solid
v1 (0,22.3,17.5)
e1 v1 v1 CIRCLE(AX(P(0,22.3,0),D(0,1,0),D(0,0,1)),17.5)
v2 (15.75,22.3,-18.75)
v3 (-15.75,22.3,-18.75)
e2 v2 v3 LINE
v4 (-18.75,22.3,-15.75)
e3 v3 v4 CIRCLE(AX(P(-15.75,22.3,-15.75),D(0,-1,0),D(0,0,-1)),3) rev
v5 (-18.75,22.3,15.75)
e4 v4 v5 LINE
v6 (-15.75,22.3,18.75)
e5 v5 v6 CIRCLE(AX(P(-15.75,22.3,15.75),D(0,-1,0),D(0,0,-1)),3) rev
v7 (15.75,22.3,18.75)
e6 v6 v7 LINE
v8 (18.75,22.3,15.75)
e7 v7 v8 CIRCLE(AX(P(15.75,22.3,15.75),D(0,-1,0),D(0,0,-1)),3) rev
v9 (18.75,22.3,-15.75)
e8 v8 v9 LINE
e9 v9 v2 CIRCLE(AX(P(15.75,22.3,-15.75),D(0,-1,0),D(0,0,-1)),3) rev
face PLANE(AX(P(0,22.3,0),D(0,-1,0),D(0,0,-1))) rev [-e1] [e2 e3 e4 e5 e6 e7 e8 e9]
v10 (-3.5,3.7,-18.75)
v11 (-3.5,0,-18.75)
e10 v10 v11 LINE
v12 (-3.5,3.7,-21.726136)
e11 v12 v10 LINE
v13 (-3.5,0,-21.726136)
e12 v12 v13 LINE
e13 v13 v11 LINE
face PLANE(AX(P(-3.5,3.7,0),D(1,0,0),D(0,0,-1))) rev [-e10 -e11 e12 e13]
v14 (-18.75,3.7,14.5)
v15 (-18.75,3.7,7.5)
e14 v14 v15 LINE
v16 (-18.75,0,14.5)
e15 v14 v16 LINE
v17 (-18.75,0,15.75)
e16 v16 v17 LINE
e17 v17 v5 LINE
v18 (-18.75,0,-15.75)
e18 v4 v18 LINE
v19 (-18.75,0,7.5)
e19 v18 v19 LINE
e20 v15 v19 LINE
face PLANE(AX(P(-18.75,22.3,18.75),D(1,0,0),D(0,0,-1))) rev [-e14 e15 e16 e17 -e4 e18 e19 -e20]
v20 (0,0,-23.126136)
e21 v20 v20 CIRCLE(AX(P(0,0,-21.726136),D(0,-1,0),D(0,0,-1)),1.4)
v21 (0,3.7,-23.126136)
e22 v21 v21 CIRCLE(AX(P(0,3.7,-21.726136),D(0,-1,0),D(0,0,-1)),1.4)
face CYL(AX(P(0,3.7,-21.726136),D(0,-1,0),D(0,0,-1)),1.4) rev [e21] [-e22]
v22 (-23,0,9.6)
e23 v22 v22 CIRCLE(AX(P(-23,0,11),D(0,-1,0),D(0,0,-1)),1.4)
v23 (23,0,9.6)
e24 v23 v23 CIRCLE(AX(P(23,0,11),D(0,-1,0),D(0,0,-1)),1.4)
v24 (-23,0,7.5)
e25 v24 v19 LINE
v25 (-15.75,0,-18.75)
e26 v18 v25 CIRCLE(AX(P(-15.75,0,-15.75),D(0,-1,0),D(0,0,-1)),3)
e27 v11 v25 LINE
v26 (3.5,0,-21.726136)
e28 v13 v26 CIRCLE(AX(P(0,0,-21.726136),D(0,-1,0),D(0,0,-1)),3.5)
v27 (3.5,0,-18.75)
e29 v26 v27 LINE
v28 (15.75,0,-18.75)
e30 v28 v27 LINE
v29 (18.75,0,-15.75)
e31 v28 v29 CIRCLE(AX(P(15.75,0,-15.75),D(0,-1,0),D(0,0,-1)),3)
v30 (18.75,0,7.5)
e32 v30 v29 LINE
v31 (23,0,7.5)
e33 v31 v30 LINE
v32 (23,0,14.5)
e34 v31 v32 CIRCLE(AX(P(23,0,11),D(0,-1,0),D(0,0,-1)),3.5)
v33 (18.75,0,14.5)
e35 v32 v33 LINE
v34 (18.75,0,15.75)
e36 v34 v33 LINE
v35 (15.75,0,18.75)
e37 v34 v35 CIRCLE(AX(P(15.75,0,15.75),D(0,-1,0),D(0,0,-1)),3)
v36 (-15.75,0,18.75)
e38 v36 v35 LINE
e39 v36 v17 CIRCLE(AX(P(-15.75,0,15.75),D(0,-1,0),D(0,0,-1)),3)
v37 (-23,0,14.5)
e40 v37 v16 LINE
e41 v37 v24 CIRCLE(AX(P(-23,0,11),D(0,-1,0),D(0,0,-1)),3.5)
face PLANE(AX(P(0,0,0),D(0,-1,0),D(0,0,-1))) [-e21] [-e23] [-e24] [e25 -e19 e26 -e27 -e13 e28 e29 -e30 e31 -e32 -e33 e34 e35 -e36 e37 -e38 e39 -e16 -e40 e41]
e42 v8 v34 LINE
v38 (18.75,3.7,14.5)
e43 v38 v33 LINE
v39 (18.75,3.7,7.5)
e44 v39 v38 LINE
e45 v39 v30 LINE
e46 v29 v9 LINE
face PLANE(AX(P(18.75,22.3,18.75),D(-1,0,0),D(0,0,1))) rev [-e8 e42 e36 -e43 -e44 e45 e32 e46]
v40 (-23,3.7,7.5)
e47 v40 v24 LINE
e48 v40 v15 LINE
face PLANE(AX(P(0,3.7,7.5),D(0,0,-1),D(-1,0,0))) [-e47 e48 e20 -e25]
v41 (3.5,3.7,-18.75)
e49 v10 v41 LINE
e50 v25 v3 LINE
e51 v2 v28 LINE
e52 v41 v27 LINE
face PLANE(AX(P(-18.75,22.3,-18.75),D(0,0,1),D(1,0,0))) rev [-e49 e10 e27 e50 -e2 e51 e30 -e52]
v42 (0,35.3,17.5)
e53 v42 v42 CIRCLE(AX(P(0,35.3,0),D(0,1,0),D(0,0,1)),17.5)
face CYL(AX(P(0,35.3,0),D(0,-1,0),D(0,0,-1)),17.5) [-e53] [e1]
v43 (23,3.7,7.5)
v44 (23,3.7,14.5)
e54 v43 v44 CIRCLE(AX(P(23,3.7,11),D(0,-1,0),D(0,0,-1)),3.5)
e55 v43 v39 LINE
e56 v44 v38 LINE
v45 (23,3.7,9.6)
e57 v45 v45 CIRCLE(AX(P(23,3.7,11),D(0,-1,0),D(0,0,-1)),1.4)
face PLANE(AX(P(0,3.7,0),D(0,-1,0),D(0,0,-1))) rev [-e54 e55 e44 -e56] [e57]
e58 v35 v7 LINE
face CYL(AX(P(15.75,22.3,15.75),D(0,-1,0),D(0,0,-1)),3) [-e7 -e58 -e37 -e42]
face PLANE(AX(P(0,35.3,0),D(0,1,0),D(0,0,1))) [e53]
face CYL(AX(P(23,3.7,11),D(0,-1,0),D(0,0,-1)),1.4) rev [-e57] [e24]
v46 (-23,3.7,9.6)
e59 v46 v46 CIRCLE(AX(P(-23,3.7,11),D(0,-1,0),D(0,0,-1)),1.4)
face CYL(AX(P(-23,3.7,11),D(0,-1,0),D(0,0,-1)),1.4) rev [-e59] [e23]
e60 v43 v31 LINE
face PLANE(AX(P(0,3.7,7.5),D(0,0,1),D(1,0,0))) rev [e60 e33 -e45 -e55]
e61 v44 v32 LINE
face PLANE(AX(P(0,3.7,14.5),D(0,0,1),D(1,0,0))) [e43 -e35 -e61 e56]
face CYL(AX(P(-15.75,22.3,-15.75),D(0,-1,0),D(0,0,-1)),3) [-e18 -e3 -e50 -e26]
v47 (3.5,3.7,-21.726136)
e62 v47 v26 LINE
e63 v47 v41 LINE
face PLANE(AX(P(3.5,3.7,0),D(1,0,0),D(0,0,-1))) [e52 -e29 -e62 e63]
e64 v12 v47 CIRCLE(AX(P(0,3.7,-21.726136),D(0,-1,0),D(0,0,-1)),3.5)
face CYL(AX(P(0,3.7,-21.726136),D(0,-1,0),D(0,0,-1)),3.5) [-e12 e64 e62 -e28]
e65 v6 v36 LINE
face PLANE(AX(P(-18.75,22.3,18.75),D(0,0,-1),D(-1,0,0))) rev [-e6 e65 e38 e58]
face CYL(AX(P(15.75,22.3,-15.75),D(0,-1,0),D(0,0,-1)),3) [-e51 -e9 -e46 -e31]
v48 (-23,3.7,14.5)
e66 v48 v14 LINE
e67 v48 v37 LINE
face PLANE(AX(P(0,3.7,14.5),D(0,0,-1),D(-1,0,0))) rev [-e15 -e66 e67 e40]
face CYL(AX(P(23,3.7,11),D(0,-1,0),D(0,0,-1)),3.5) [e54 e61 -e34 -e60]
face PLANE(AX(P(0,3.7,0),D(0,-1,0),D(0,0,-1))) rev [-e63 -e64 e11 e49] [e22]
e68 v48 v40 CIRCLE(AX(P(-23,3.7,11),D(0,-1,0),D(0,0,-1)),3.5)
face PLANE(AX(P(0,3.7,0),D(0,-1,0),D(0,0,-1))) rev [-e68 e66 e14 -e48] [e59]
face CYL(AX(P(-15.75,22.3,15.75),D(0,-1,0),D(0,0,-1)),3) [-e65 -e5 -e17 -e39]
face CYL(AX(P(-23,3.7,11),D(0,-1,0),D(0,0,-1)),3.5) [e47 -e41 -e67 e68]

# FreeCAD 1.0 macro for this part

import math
import FreeCAD as App
import Part
import Sketcher
Q = App.Units.Quantity


def edges_at(feature, points):
    """Names of the edges that pass closest to the given points."""
    edges = feature.Shape.Edges
    near = lambda p: min(range(len(edges)), key=lambda i: edges[i].distToShape(Part.Vertex(*p))[0])
    return sorted({f"Edge{near(p) + 1}" for p in points})

doc = App.newDocument("Part")
body = doc.addObject("PartDesign::Body", "Body")

sketch1 = body.newObject("Sketcher::SketchObject", "Sketch")
sketch1.AttachmentSupport = (doc.getObject("XZ_Plane"), [""])
sketch1.MapMode = "FlatFace"
sketch1.addGeometry(Part.LineSegment(App.Vector(-19, -19, 0), App.Vector(-19, 19, 0)), False)
sketch1.addGeometry(Part.LineSegment(App.Vector(-19, 19, 0), App.Vector(19, 19, 0)), False)
sketch1.addGeometry(Part.LineSegment(App.Vector(19, 19, 0), App.Vector(19, -19, 0)), False)
sketch1.addGeometry(Part.LineSegment(App.Vector(19, -19, 0), App.Vector(-19, -19, 0)), False)
sketch1.addConstraint(Sketcher.Constraint("Coincident", 0, 2, 1, 1))
sketch1.addConstraint(Sketcher.Constraint("Coincident", 1, 2, 2, 1))
sketch1.addConstraint(Sketcher.Constraint("Coincident", 2, 2, 3, 1))
sketch1.addConstraint(Sketcher.Constraint("Coincident", 3, 2, 0, 1))
sketch1.addConstraint(Sketcher.Constraint("Vertical", 0))
sketch1.addConstraint(Sketcher.Constraint("Horizontal", 1))
sketch1.addConstraint(Sketcher.Constraint("Vertical", 2))
sketch1.addConstraint(Sketcher.Constraint("Horizontal", 3))
sketch1.addConstraint(Sketcher.Constraint("Symmetric", 0, 2, 2, 2, -1, 1))
sketch1.addConstraint(Sketcher.Constraint("Equal", 3, 0))
sketch1.addConstraint(Sketcher.Constraint("DistanceX", 1, 1, 1, 2, Q("37.5 mm")))
pad1 = body.newObject("PartDesign::Pad", "Pad")
pad1.Profile = sketch1
pad1.Length = 22.3
pad1.Reversed = True
doc.recompute()

fillet = body.newObject("PartDesign::Fillet", "Fillet")
fillet.Base = (pad1, edges_at(pad1, [
    (18.75, 11.15, 18.75),
    (-18.75, 11.15, 18.75),
    (-18.75, 11.15, -18.75),
    (18.75, 11.15, -18.75),
]))
fillet.Radius = 3

sketch2 = body.newObject("Sketcher::SketchObject", "Sketch001")
sketch2.AttachmentSupport = (doc.getObject("XZ_Plane"), [""])
sketch2.MapMode = "FlatFace"
sketch2.AttachmentOffset = App.Placement(App.Vector(0, 0, -22.3), App.Rotation())
sketch2.addGeometry(Part.Circle(App.Vector(0, 0, 0), App.Vector(0, 0, 1), 18), False)
sketch2.addConstraint(Sketcher.Constraint("Coincident", 0, 3, -1, 1))
sketch2.addConstraint(Sketcher.Constraint("Diameter", 0, Q("35 mm")))
pad2 = body.newObject("PartDesign::Pad", "Pad001")
pad2.Profile = sketch2
pad2.Length = 13
pad2.Reversed = True

sketch3 = body.newObject("Sketcher::SketchObject", "Sketch002")
sketch3.AttachmentSupport = (doc.getObject("XZ_Plane"), [""])
sketch3.MapMode = "FlatFace"
sketch3.addGeometry(Part.LineSegment(App.Vector(-18.8, 14.5, 0), App.Vector(-23, 14.5, 0)), False)
sketch3.addGeometry(Part.ArcOfCircle(Part.Circle(App.Vector(-23, 11, 0), App.Vector(0, 0, 1), 3.5), math.radians(90), math.radians(270)), False)
sketch3.addGeometry(Part.LineSegment(App.Vector(-23, 7.5, 0), App.Vector(-18.8, 7.5, 0)), False)
sketch3.addGeometry(Part.LineSegment(App.Vector(-18.8, 7.5, 0), App.Vector(-18.8, 14.5, 0)), False)
sketch3.addGeometry(Part.Circle(App.Vector(-23, 11, 0), App.Vector(0, 0, 1), 1.4), False)
sketch3.addGeometry(Part.LineSegment(App.Vector(18.8, 7.5, 0), App.Vector(23, 7.5, 0)), False)
sketch3.addGeometry(Part.ArcOfCircle(Part.Circle(App.Vector(23, 11, 0), App.Vector(0, 0, 1), 3.5), math.radians(-90), math.radians(90)), False)
sketch3.addGeometry(Part.LineSegment(App.Vector(23, 14.5, 0), App.Vector(18.8, 14.5, 0)), False)
sketch3.addGeometry(Part.LineSegment(App.Vector(18.8, 14.5, 0), App.Vector(18.8, 7.5, 0)), False)
sketch3.addGeometry(Part.Circle(App.Vector(23, 11, 0), App.Vector(0, 0, 1), 1.4), False)
sketch3.addGeometry(Part.ArcOfCircle(Part.Circle(App.Vector(0, -21.7, 0), App.Vector(0, 0, 1), 3.5), math.radians(180), math.radians(360)), False)
sketch3.addGeometry(Part.LineSegment(App.Vector(3.5, -21.7, 0), App.Vector(3.5, -18.8, 0)), False)
sketch3.addGeometry(Part.LineSegment(App.Vector(3.5, -18.8, 0), App.Vector(-3.5, -18.8, 0)), False)
sketch3.addGeometry(Part.LineSegment(App.Vector(-3.5, -18.8, 0), App.Vector(-3.5, -21.7, 0)), False)
sketch3.addGeometry(Part.Circle(App.Vector(0, -21.7, 0), App.Vector(0, 0, 1), 1.4), False)
sketch3.addConstraint(Sketcher.Constraint("Tangent", 0, 2, 1, 1))
sketch3.addConstraint(Sketcher.Constraint("Tangent", 1, 2, 2, 1))
sketch3.addConstraint(Sketcher.Constraint("Coincident", 2, 2, 3, 1))
sketch3.addConstraint(Sketcher.Constraint("Coincident", 3, 2, 0, 1))
sketch3.addConstraint(Sketcher.Constraint("Tangent", 5, 2, 6, 1))
sketch3.addConstraint(Sketcher.Constraint("Tangent", 6, 2, 7, 1))
sketch3.addConstraint(Sketcher.Constraint("Coincident", 7, 2, 8, 1))
sketch3.addConstraint(Sketcher.Constraint("Coincident", 8, 2, 5, 1))
sketch3.addConstraint(Sketcher.Constraint("Tangent", 10, 2, 11, 1))
sketch3.addConstraint(Sketcher.Constraint("Coincident", 11, 2, 12, 1))
sketch3.addConstraint(Sketcher.Constraint("Coincident", 12, 2, 13, 1))
sketch3.addConstraint(Sketcher.Constraint("Tangent", 13, 2, 10, 1))
sketch3.addConstraint(Sketcher.Constraint("Horizontal", 0))
sketch3.addConstraint(Sketcher.Constraint("Horizontal", 2))
sketch3.addConstraint(Sketcher.Constraint("Vertical", 3))
sketch3.addConstraint(Sketcher.Constraint("Horizontal", 5))
sketch3.addConstraint(Sketcher.Constraint("Horizontal", 7))
sketch3.addConstraint(Sketcher.Constraint("Vertical", 8))
sketch3.addConstraint(Sketcher.Constraint("Vertical", 11))
sketch3.addConstraint(Sketcher.Constraint("Horizontal", 12))
sketch3.addConstraint(Sketcher.Constraint("Vertical", 13))
sketch3.addConstraint(Sketcher.Constraint("Coincident", 4, 3, 1, 3))
sketch3.addConstraint(Sketcher.Constraint("Coincident", 9, 3, 6, 3))
sketch3.addConstraint(Sketcher.Constraint("Coincident", 14, 3, 10, 3))
sketch3.addConstraint(Sketcher.Constraint("Equal", 1, 6))
sketch3.addConstraint(Sketcher.Constraint("Equal", 4, 9))
sketch3.addConstraint(Sketcher.Constraint("Equal", 6, 10))
sketch3.addConstraint(Sketcher.Constraint("Equal", 9, 14))
sketch3.addConstraint(Sketcher.Constraint("Symmetric", 1, 3, 6, 3, -2))
sketch3.addConstraint(Sketcher.Constraint("PointOnObject", 10, 3, -2))
sketch3.addConstraint(Sketcher.Constraint("Equal", 2, 5))
sketch3.addConstraint(Sketcher.Constraint("Diameter", 4, Q("2.8 mm")))
sketch3.addConstraint(Sketcher.Constraint("Radius", 1, Q("3.5 mm")))
sketch3.addConstraint(Sketcher.Constraint("DistanceX", 1, 3, -1, 1, Q("23 mm")))
sketch3.addConstraint(Sketcher.Constraint("DistanceY", -1, 1, 1, 3, Q("11 mm")))
sketch3.addConstraint(Sketcher.Constraint("DistanceX", 0, 2, 0, 1, Q("4.25 mm")))
sketch3.addConstraint(Sketcher.Constraint("DistanceY", 11, 2, -1, 1, Q("18.75 mm")))
sketch3.addConstraint(Sketcher.Constraint("DistanceY", 11, 1, 11, 2, Q("2.976136 mm")))
pad3 = body.newObject("PartDesign::Pad", "Pad002")
pad3.Profile = sketch3
pad3.Length = 3.7
pad3.Reversed = True

doc.recompute()
